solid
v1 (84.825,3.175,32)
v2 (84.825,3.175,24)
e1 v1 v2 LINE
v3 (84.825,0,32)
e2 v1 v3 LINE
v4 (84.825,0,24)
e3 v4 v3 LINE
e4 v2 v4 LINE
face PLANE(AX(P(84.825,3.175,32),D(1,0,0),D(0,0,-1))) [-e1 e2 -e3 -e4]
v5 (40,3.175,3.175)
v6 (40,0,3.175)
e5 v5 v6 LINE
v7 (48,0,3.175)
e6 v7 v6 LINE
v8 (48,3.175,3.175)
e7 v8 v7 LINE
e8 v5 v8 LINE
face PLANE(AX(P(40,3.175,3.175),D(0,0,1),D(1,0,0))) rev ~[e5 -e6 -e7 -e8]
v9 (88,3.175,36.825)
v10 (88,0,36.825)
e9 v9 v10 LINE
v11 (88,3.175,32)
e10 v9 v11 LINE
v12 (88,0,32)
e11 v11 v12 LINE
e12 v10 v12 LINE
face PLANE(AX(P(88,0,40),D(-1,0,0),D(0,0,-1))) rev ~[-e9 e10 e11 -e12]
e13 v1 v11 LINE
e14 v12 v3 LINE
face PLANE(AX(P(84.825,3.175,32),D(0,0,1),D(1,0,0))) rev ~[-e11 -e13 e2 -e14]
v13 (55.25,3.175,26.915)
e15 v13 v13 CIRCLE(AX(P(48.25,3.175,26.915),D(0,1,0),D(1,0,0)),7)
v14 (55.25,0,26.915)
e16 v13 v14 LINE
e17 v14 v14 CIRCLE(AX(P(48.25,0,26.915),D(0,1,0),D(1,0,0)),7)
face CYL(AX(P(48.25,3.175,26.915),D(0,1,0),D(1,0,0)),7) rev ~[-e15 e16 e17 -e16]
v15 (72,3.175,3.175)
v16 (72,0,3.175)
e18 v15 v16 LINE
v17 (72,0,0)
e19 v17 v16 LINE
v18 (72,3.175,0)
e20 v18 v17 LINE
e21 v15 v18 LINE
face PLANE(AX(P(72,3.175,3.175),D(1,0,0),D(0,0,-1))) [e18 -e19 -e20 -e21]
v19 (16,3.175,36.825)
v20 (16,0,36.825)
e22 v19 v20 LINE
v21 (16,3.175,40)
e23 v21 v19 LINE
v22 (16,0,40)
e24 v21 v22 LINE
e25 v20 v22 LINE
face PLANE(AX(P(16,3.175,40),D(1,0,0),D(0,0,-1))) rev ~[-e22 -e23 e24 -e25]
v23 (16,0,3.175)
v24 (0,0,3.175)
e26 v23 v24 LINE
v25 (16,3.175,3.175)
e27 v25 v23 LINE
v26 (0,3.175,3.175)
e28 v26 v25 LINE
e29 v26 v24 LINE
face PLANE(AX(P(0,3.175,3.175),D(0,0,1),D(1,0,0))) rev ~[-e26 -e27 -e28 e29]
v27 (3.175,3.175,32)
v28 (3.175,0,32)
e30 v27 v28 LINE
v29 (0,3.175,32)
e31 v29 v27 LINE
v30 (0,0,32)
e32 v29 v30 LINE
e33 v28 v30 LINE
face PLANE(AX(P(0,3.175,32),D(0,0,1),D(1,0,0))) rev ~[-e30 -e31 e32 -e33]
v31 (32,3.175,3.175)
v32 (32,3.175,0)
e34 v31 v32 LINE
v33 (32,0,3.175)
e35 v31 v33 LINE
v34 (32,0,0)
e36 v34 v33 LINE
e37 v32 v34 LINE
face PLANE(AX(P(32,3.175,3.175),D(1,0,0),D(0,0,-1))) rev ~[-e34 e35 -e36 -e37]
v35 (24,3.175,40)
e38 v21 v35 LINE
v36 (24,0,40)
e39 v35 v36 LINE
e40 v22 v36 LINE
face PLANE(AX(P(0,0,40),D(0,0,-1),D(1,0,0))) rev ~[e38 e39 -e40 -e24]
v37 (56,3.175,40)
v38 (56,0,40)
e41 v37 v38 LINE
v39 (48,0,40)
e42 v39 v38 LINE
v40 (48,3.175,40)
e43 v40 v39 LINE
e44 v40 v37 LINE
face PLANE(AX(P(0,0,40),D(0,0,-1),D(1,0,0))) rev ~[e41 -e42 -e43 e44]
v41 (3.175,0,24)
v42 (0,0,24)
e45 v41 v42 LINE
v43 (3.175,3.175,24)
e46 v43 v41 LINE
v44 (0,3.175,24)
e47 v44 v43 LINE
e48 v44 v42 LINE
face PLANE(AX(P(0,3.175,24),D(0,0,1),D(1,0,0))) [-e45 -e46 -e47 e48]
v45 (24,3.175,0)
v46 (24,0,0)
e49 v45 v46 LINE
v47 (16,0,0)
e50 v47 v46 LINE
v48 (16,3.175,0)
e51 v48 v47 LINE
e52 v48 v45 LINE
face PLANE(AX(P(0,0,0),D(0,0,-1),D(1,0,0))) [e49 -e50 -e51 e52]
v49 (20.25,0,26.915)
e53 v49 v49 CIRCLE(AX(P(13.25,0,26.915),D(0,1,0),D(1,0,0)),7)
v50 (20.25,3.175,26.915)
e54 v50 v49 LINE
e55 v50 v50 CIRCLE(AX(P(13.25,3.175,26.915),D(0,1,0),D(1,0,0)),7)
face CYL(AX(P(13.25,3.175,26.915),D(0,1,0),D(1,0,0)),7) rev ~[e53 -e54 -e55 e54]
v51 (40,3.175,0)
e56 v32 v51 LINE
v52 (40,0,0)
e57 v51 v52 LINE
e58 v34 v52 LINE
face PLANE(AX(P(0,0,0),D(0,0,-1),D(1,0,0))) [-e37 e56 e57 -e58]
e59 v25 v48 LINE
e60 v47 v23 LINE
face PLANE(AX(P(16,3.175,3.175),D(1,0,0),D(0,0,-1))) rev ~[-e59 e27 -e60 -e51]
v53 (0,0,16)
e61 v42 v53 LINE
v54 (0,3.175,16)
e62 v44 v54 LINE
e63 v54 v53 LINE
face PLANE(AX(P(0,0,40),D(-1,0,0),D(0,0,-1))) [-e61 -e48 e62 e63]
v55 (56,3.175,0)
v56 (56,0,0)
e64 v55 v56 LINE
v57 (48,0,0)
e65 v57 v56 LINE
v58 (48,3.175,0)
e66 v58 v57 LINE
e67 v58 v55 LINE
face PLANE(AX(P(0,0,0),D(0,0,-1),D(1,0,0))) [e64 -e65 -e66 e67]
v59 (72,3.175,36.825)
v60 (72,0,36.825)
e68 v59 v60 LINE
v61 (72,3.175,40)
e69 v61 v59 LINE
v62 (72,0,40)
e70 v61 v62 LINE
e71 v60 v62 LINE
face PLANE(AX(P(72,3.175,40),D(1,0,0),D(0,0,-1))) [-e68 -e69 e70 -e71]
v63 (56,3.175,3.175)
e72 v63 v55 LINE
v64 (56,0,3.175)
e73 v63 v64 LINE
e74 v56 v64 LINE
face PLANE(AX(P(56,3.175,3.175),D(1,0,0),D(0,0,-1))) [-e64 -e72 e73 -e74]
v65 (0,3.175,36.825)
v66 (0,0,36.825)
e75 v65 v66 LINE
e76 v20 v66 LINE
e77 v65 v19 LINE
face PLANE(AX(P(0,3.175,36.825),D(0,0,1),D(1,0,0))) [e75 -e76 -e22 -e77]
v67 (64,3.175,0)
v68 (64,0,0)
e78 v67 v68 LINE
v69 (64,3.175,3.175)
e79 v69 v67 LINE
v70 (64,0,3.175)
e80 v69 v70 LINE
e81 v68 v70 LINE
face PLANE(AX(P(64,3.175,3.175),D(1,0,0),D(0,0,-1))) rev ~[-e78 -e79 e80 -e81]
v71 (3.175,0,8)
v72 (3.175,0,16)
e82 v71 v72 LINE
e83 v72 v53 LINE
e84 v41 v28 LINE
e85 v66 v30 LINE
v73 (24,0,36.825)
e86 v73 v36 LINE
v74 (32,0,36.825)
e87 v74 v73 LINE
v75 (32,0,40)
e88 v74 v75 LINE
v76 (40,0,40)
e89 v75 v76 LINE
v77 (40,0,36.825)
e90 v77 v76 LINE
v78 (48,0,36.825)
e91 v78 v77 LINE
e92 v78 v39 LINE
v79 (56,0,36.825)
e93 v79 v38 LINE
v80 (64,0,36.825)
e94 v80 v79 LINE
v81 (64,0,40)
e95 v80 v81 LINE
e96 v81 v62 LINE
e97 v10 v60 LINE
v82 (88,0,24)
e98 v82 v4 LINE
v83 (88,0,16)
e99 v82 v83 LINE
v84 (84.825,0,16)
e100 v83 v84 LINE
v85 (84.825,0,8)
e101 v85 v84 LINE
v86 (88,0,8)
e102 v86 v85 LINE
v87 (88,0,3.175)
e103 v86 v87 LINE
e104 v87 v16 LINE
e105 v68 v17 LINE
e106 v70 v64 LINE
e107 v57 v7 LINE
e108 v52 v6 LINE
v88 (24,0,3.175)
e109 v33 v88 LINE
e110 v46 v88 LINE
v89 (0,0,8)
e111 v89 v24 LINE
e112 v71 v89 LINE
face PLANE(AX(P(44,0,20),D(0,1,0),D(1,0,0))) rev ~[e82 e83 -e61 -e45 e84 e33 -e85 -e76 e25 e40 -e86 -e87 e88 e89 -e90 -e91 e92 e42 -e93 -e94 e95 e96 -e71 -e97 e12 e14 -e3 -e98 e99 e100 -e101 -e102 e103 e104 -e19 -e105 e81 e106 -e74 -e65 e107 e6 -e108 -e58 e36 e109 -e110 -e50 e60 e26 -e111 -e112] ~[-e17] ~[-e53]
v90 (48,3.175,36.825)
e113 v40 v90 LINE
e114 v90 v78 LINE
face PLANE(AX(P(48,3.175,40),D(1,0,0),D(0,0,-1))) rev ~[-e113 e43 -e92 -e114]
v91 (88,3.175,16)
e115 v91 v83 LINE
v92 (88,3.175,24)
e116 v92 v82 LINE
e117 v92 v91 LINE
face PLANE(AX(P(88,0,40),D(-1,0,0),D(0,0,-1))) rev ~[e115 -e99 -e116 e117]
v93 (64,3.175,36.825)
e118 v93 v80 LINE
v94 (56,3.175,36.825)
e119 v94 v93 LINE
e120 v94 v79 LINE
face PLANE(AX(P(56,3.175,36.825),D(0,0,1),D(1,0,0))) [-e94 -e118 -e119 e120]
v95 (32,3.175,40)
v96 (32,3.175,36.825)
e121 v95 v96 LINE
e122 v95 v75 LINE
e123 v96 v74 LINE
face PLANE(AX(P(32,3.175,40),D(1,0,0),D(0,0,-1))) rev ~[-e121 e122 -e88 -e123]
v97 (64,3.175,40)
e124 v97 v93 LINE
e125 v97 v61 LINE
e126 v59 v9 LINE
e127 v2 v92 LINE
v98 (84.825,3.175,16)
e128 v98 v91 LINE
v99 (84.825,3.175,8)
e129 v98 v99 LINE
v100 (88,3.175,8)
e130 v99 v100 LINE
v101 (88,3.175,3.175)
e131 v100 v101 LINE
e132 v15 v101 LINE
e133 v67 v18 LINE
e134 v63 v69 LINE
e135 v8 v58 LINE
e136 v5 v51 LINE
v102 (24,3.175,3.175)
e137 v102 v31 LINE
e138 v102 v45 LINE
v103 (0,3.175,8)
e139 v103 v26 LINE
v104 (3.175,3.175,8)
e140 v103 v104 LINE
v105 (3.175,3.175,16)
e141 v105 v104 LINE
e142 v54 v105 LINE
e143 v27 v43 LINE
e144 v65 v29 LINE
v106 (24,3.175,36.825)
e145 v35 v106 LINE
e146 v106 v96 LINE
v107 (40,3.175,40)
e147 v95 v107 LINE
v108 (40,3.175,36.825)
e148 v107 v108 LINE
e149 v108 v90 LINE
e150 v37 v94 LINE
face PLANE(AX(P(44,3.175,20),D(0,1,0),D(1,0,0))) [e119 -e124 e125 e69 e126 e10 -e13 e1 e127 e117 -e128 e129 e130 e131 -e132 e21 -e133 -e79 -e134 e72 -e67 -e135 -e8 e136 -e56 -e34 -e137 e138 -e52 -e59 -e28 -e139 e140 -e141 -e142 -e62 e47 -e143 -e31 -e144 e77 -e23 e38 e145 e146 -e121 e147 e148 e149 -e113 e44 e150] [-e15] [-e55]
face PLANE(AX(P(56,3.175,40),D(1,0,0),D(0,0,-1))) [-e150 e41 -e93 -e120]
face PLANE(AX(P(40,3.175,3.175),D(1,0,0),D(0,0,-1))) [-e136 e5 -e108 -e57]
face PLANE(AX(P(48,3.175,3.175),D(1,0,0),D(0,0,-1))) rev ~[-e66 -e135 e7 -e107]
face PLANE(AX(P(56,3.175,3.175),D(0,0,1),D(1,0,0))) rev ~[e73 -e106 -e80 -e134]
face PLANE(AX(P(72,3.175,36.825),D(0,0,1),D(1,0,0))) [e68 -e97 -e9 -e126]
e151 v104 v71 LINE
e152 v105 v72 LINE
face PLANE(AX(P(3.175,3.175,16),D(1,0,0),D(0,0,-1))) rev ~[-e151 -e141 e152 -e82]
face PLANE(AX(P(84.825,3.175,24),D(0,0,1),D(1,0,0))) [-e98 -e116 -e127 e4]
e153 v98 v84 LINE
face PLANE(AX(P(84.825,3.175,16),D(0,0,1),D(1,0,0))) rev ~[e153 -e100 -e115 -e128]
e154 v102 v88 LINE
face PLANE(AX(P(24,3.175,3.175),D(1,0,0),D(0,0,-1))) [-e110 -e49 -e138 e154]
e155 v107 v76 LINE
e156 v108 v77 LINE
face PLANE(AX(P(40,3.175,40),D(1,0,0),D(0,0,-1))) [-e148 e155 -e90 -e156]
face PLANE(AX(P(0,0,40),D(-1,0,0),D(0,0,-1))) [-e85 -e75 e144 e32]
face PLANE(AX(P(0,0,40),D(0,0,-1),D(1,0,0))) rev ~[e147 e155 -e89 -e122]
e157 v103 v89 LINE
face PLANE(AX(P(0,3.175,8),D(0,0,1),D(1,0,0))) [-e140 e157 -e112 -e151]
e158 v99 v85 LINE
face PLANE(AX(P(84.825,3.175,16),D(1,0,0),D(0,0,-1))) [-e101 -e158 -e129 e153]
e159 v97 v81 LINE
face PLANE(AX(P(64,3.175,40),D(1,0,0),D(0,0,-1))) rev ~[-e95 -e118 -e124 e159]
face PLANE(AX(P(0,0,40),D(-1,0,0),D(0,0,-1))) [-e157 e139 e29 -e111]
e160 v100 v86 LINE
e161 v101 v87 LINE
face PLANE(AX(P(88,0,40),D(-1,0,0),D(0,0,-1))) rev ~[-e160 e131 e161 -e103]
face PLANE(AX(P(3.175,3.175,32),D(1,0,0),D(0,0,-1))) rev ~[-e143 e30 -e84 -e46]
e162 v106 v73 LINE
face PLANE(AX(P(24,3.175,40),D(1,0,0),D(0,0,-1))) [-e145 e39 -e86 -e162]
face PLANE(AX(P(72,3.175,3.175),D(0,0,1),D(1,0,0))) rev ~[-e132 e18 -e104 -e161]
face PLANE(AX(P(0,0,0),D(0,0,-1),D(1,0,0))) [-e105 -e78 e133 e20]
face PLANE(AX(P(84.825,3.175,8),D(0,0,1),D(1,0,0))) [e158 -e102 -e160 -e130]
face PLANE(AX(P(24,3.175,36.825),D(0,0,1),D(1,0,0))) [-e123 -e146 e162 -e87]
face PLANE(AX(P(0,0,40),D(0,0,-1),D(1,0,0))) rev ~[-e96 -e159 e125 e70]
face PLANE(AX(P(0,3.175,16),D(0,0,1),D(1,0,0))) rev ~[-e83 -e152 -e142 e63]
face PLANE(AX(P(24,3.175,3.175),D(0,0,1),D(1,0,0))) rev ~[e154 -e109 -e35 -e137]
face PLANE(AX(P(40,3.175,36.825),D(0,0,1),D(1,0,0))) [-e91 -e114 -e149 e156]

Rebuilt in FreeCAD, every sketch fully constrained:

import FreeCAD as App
import Part
import Sketcher

doc = App.newDocument("Part")
body = doc.addObject("PartDesign::Body", "Body")

# Sketch on XZ plane
sketch1 = doc.addObject("Sketcher::SketchObject", "Sketch")
body.addObject(sketch1)
sketch1.AttachmentSupport = (doc.XZ_Plane, [""])
sketch1.MapMode = "FlatFace"
sketch1.addGeometry(Part.LineSegment(App.Vector(0, 0, 0), App.Vector(0, 40, 0)), False)
sketch1.addGeometry(Part.LineSegment(App.Vector(0, 40, 0), App.Vector(88, 40, 0)), False)
sketch1.addGeometry(Part.LineSegment(App.Vector(88, 40, 0), App.Vector(88, 0, 0)), False)
sketch1.addGeometry(Part.LineSegment(App.Vector(88, 0, 0), App.Vector(0, 0, 0)), False)
sketch1.addConstraint(Sketcher.Constraint("Coincident", 0, 2, 1, 1))
sketch1.addConstraint(Sketcher.Constraint("Coincident", 1, 2, 2, 1))
sketch1.addConstraint(Sketcher.Constraint("Coincident", 2, 2, 3, 1))
sketch1.addConstraint(Sketcher.Constraint("Coincident", 3, 2, 0, 1))
sketch1.addConstraint(Sketcher.Constraint("Vertical", 0))
sketch1.addConstraint(Sketcher.Constraint("Horizontal", 1))
sketch1.addConstraint(Sketcher.Constraint("Vertical", 2))
sketch1.addConstraint(Sketcher.Constraint("Horizontal", 3))
sketch1.addConstraint(Sketcher.Constraint("Coincident", 3, 2, -1, 1))
sketch1.addConstraint(Sketcher.Constraint("DistanceX", 1, 1, 1, 2, 88.0))
sketch1.addConstraint(Sketcher.Constraint("DistanceY", 0, 1, 0, 2, 40.0))
pad1 = doc.addObject("PartDesign::Pad", "Pad")
body.addObject(pad1)
pad1.Profile = sketch1
pad1.Length = 3.175
pad1.Reversed = True

# Sketch on XZ plane
sketch2 = doc.addObject("Sketcher::SketchObject", "Sketch001")
body.addObject(sketch2)
sketch2.AttachmentSupport = (doc.XZ_Plane, [""])
sketch2.MapMode = "FlatFace"
sketch2.AttachmentOffset = App.Placement(App.Vector(0, 0, -3.175), App.Rotation())
sketch2.addGeometry(Part.LineSegment(App.Vector(0, 0, 0), App.Vector(0, 3.2, 0)), False)
sketch2.addGeometry(Part.LineSegment(App.Vector(0, 3.2, 0), App.Vector(16, 3.2, 0)), False)
sketch2.addGeometry(Part.LineSegment(App.Vector(16, 3.2, 0), App.Vector(16, 0, 0)), False)
sketch2.addGeometry(Part.LineSegment(App.Vector(16, 0, 0), App.Vector(0, 0, 0)), False)
sketch2.addConstraint(Sketcher.Constraint("Coincident", 0, 2, 1, 1))
sketch2.addConstraint(Sketcher.Constraint("Coincident", 1, 2, 2, 1))
sketch2.addConstraint(Sketcher.Constraint("Coincident", 2, 2, 3, 1))
sketch2.addConstraint(Sketcher.Constraint("Coincident", 3, 2, 0, 1))
sketch2.addConstraint(Sketcher.Constraint("Vertical", 0))
sketch2.addConstraint(Sketcher.Constraint("Horizontal", 1))
sketch2.addConstraint(Sketcher.Constraint("Vertical", 2))
sketch2.addConstraint(Sketcher.Constraint("Horizontal", 3))
sketch2.addConstraint(Sketcher.Constraint("Coincident", 3, 2, -1, 1))
sketch2.addConstraint(Sketcher.Constraint("DistanceX", 1, 1, 1, 2, 16.0))
sketch2.addConstraint(Sketcher.Constraint("DistanceY", 0, 1, 0, 2, 3.175))
pocket1 = doc.addObject("PartDesign::Pocket", "Pocket")
body.addObject(pocket1)
pocket1.Profile = sketch2
pocket1.Type = "UpToFirst"
pocket1.Reversed = True

# Sketch on XZ plane
sketch3 = doc.addObject("Sketcher::SketchObject", "Sketch002")
body.addObject(sketch3)
sketch3.AttachmentSupport = (doc.XZ_Plane, [""])
sketch3.MapMode = "FlatFace"
sketch3.AttachmentOffset = App.Placement(App.Vector(0, 0, -3.175), App.Rotation())
sketch3.addGeometry(Part.LineSegment(App.Vector(40, 0, 0), App.Vector(40, 3.2, 0)), False)
sketch3.addGeometry(Part.LineSegment(App.Vector(40, 3.2, 0), App.Vector(48, 3.2, 0)), False)
sketch3.addGeometry(Part.LineSegment(App.Vector(48, 3.2, 0), App.Vector(48, 0, 0)), False)
sketch3.addGeometry(Part.LineSegment(App.Vector(48, 0, 0), App.Vector(40, 0, 0)), False)
sketch3.addConstraint(Sketcher.Constraint("Coincident", 0, 2, 1, 1))
sketch3.addConstraint(Sketcher.Constraint("Coincident", 1, 2, 2, 1))
sketch3.addConstraint(Sketcher.Constraint("Coincident", 2, 2, 3, 1))
sketch3.addConstraint(Sketcher.Constraint("Coincident", 3, 2, 0, 1))
sketch3.addConstraint(Sketcher.Constraint("Vertical", 0))
sketch3.addConstraint(Sketcher.Constraint("Horizontal", 1))
sketch3.addConstraint(Sketcher.Constraint("Vertical", 2))
sketch3.addConstraint(Sketcher.Constraint("Horizontal", 3))
sketch3.addConstraint(Sketcher.Constraint("PointOnObject", 2, 2, -1))
sketch3.addConstraint(Sketcher.Constraint("DistanceX", 1, 1, 1, 2, 8.0))
sketch3.addConstraint(Sketcher.Constraint("DistanceX", -1, 1, 0, 2, 40.0))
sketch3.addConstraint(Sketcher.Constraint("DistanceY", 0, 1, 0, 2, 3.175))
pocket2 = doc.addObject("PartDesign::Pocket", "Pocket001")
body.addObject(pocket2)
pocket2.Profile = sketch3
pocket2.Type = "UpToFirst"
pocket2.Reversed = True

# Sketch on XZ plane
sketch4 = doc.addObject("Sketcher::SketchObject", "Sketch003")
body.addObject(sketch4)
sketch4.AttachmentSupport = (doc.XZ_Plane, [""])
sketch4.MapMode = "FlatFace"
sketch4.AttachmentOffset = App.Placement(App.Vector(0, 0, -3.175), App.Rotation())
sketch4.addGeometry(Part.LineSegment(App.Vector(56, 0, 0), App.Vector(56, 3.2, 0)), False)
sketch4.addGeometry(Part.LineSegment(App.Vector(56, 3.2, 0), App.Vector(64, 3.2, 0)), False)
sketch4.addGeometry(Part.LineSegment(App.Vector(64, 3.2, 0), App.Vector(64, 0, 0)), False)
sketch4.addGeometry(Part.LineSegment(App.Vector(64, 0, 0), App.Vector(56, 0, 0)), False)
sketch4.addConstraint(Sketcher.Constraint("Coincident", 0, 2, 1, 1))
sketch4.addConstraint(Sketcher.Constraint("Coincident", 1, 2, 2, 1))
sketch4.addConstraint(Sketcher.Constraint("Coincident", 2, 2, 3, 1))
sketch4.addConstraint(Sketcher.Constraint("Coincident", 3, 2, 0, 1))
sketch4.addConstraint(Sketcher.Constraint("Vertical", 0))
sketch4.addConstraint(Sketcher.Constraint("Horizontal", 1))
sketch4.addConstraint(Sketcher.Constraint("Vertical", 2))
sketch4.addConstraint(Sketcher.Constraint("Horizontal", 3))
sketch4.addConstraint(Sketcher.Constraint("PointOnObject", 2, 2, -1))
sketch4.addConstraint(Sketcher.Constraint("DistanceX", 1, 1, 1, 2, 8.0))
sketch4.addConstraint(Sketcher.Constraint("DistanceX", -1, 1, 0, 2, 56.0))
sketch4.addConstraint(Sketcher.Constraint("DistanceY", 0, 1, 0, 2, 3.175))
pocket3 = doc.addObject("PartDesign::Pocket", "Pocket002")
body.addObject(pocket3)
pocket3.Profile = sketch4
pocket3.Type = "UpToFirst"
pocket3.Reversed = True

# Sketch on XZ plane
sketch5 = doc.addObject("Sketcher::SketchObject", "Sketch004")
body.addObject(sketch5)
sketch5.AttachmentSupport = (doc.XZ_Plane, [""])
sketch5.MapMode = "FlatFace"
sketch5.AttachmentOffset = App.Placement(App.Vector(0, 0, -3.175), App.Rotation())
sketch5.addGeometry(Part.LineSegment(App.Vector(72, 0, 0), App.Vector(72, 3.2, 0)), False)
sketch5.addGeometry(Part.LineSegment(App.Vector(72, 3.2, 0), App.Vector(88, 3.2, 0)), False)
sketch5.addGeometry(Part.LineSegment(App.Vector(88, 3.2, 0), App.Vector(88, 0, 0)), False)
sketch5.addGeometry(Part.LineSegment(App.Vector(88, 0, 0), App.Vector(72, 0, 0)), False)
sketch5.addConstraint(Sketcher.Constraint("Coincident", 0, 2, 1, 1))
sketch5.addConstraint(Sketcher.Constraint("Coincident", 1, 2, 2, 1))
sketch5.addConstraint(Sketcher.Constraint("Coincident", 2, 2, 3, 1))
sketch5.addConstraint(Sketcher.Constraint("Coincident", 3, 2, 0, 1))
sketch5.addConstraint(Sketcher.Constraint("Vertical", 0))
sketch5.addConstraint(Sketcher.Constraint("Horizontal", 1))
sketch5.addConstraint(Sketcher.Constraint("Vertical", 2))
sketch5.addConstraint(Sketcher.Constraint("Horizontal", 3))
sketch5.addConstraint(Sketcher.Constraint("PointOnObject", 2, 2, -1))
sketch5.addConstraint(Sketcher.Constraint("DistanceX", 1, 1, 1, 2, 16.0))
sketch5.addConstraint(Sketcher.Constraint("DistanceX", -1, 1, 0, 2, 72.0))
sketch5.addConstraint(Sketcher.Constraint("DistanceY", 0, 1, 0, 2, 3.175))
pocket4 = doc.addObject("PartDesign::Pocket", "Pocket003")
body.addObject(pocket4)
pocket4.Profile = sketch5
pocket4.Type = "UpToFirst"
pocket4.Reversed = True

# Sketch on XZ plane
sketch6 = doc.addObject("Sketcher::SketchObject", "Sketch005")
body.addObject(sketch6)
sketch6.AttachmentSupport = (doc.XZ_Plane, [""])
sketch6.MapMode = "FlatFace"
sketch6.AttachmentOffset = App.Placement(App.Vector(0, 0, -3.175), App.Rotation())
sketch6.addGeometry(Part.LineSegment(App.Vector(24, 0, 0), App.Vector(24, 3.2, 0)), False)
sketch6.addGeometry(Part.LineSegment(App.Vector(24, 3.2, 0), App.Vector(32, 3.2, 0)), False)
sketch6.addGeometry(Part.LineSegment(App.Vector(32, 3.2, 0), App.Vector(32, 0, 0)), False)
sketch6.addGeometry(Part.LineSegment(App.Vector(32, 0, 0), App.Vector(24, 0, 0)), False)
sketch6.addConstraint(Sketcher.Constraint("Coincident", 0, 2, 1, 1))
sketch6.addConstraint(Sketcher.Constraint("Coincident", 1, 2, 2, 1))
sketch6.addConstraint(Sketcher.Constraint("Coincident", 2, 2, 3, 1))
sketch6.addConstraint(Sketcher.Constraint("Coincident", 3, 2, 0, 1))
sketch6.addConstraint(Sketcher.Constraint("Vertical", 0))
sketch6.addConstraint(Sketcher.Constraint("Horizontal", 1))
sketch6.addConstraint(Sketcher.Constraint("Vertical", 2))
sketch6.addConstraint(Sketcher.Constraint("Horizontal", 3))
sketch6.addConstraint(Sketcher.Constraint("PointOnObject", 2, 2, -1))
sketch6.addConstraint(Sketcher.Constraint("DistanceX", 1, 1, 1, 2, 8.0))
sketch6.addConstraint(Sketcher.Constraint("DistanceX", -1, 1, 0, 2, 24.0))
sketch6.addConstraint(Sketcher.Constraint("DistanceY", 0, 1, 0, 2, 3.175))
pocket5 = doc.addObject("PartDesign::Pocket", "Pocket004")
body.addObject(pocket5)
pocket5.Profile = sketch6
pocket5.Type = "UpToFirst"
pocket5.Reversed = True

# Sketch on XZ plane
sketch7 = doc.addObject("Sketcher::SketchObject", "Sketch006")
body.addObject(sketch7)
sketch7.AttachmentSupport = (doc.XZ_Plane, [""])
sketch7.MapMode = "FlatFace"
sketch7.AttachmentOffset = App.Placement(App.Vector(0, 0, -3.175), App.Rotation())
sketch7.addGeometry(Part.LineSegment(App.Vector(40, 36.8, 0), App.Vector(40, 40, 0)), False)
sketch7.addGeometry(Part.LineSegment(App.Vector(40, 40, 0), App.Vector(48, 40, 0)), False)
sketch7.addGeometry(Part.LineSegment(App.Vector(48, 40, 0), App.Vector(48, 36.8, 0)), False)
sketch7.addGeometry(Part.LineSegment(App.Vector(48, 36.8, 0), App.Vector(40, 36.8, 0)), False)
sketch7.addConstraint(Sketcher.Constraint("Coincident", 0, 2, 1, 1))
sketch7.addConstraint(Sketcher.Constraint("Coincident", 1, 2, 2, 1))
sketch7.addConstraint(Sketcher.Constraint("Coincident", 2, 2, 3, 1))
sketch7.addConstraint(Sketcher.Constraint("Coincident", 3, 2, 0, 1))
sketch7.addConstraint(Sketcher.Constraint("Vertical", 0))
sketch7.addConstraint(Sketcher.Constraint("Horizontal", 1))
sketch7.addConstraint(Sketcher.Constraint("Vertical", 2))
sketch7.addConstraint(Sketcher.Constraint("Horizontal", 3))
sketch7.addConstraint(Sketcher.Constraint("DistanceX", 1, 1, 1, 2, 8.0))
sketch7.addConstraint(Sketcher.Constraint("DistanceX", -1, 1, 0, 2, 40.0))
sketch7.addConstraint(Sketcher.Constraint("DistanceY", -1, 1, 0, 2, 40.0))
sketch7.addConstraint(Sketcher.Constraint("DistanceY", 0, 1, 0, 2, 3.175))
pocket6 = doc.addObject("PartDesign::Pocket", "Pocket005")
body.addObject(pocket6)
pocket6.Profile = sketch7
pocket6.Type = "UpToFirst"
pocket6.Reversed = True

# Sketch on XZ plane
sketch8 = doc.addObject("Sketcher::SketchObject", "Sketch007")
body.addObject(sketch8)
sketch8.AttachmentSupport = (doc.XZ_Plane, [""])
sketch8.MapMode = "FlatFace"
sketch8.AttachmentOffset = App.Placement(App.Vector(0, 0, -3.175), App.Rotation())
sketch8.addGeometry(Part.LineSegment(App.Vector(24, 36.8, 0), App.Vector(24, 40, 0)), False)
sketch8.addGeometry(Part.LineSegment(App.Vector(24, 40, 0), App.Vector(32, 40, 0)), False)
sketch8.addGeometry(Part.LineSegment(App.Vector(32, 40, 0), App.Vector(32, 36.8, 0)), False)
sketch8.addGeometry(Part.LineSegment(App.Vector(32, 36.8, 0), App.Vector(24, 36.8, 0)), False)
sketch8.addConstraint(Sketcher.Constraint("Coincident", 0, 2, 1, 1))
sketch8.addConstraint(Sketcher.Constraint("Coincident", 1, 2, 2, 1))
sketch8.addConstraint(Sketcher.Constraint("Coincident", 2, 2, 3, 1))
sketch8.addConstraint(Sketcher.Constraint("Coincident", 3, 2, 0, 1))
sketch8.addConstraint(Sketcher.Constraint("Vertical", 0))
sketch8.addConstraint(Sketcher.Constraint("Horizontal", 1))
sketch8.addConstraint(Sketcher.Constraint("Vertical", 2))
sketch8.addConstraint(Sketcher.Constraint("Horizontal", 3))
sketch8.addConstraint(Sketcher.Constraint("DistanceX", 1, 1, 1, 2, 8.0))
sketch8.addConstraint(Sketcher.Constraint("DistanceX", -1, 1, 0, 2, 24.0))
sketch8.addConstraint(Sketcher.Constraint("DistanceY", -1, 1, 0, 2, 40.0))
sketch8.addConstraint(Sketcher.Constraint("DistanceY", 0, 1, 0, 2, 3.175))
pocket7 = doc.addObject("PartDesign::Pocket", "Pocket006")
body.addObject(pocket7)
pocket7.Profile = sketch8
pocket7.Type = "UpToFirst"
pocket7.Reversed = True

# Sketch on XZ plane
sketch9 = doc.addObject("Sketcher::SketchObject", "Sketch008")
body.addObject(sketch9)
sketch9.AttachmentSupport = (doc.XZ_Plane, [""])
sketch9.MapMode = "FlatFace"
sketch9.AttachmentOffset = App.Placement(App.Vector(0, 0, -3.175), App.Rotation())
sketch9.addGeometry(Part.LineSegment(App.Vector(0, 36.8, 0), App.Vector(0, 40, 0)), False)
sketch9.addGeometry(Part.LineSegment(App.Vector(0, 40, 0), App.Vector(16, 40, 0)), False)
sketch9.addGeometry(Part.LineSegment(App.Vector(16, 40, 0), App.Vector(16, 36.8, 0)), False)
sketch9.addGeometry(Part.LineSegment(App.Vector(16, 36.8, 0), App.Vector(0, 36.8, 0)), False)
sketch9.addConstraint(Sketcher.Constraint("Coincident", 0, 2, 1, 1))
sketch9.addConstraint(Sketcher.Constraint("Coincident", 1, 2, 2, 1))
sketch9.addConstraint(Sketcher.Constraint("Coincident", 2, 2, 3, 1))
sketch9.addConstraint(Sketcher.Constraint("Coincident", 3, 2, 0, 1))
sketch9.addConstraint(Sketcher.Constraint("Vertical", 0))
sketch9.addConstraint(Sketcher.Constraint("Horizontal", 1))
sketch9.addConstraint(Sketcher.Constraint("Vertical", 2))
sketch9.addConstraint(Sketcher.Constraint("Horizontal", 3))
sketch9.addConstraint(Sketcher.Constraint("PointOnObject", 0, 2, -2))
sketch9.addConstraint(Sketcher.Constraint("DistanceX", 1, 1, 1, 2, 16.0))
sketch9.addConstraint(Sketcher.Constraint("DistanceY", -1, 1, 0, 2, 40.0))
sketch9.addConstraint(Sketcher.Constraint("DistanceY", 0, 1, 0, 2, 3.175))
pocket8 = doc.addObject("PartDesign::Pocket", "Pocket007")
body.addObject(pocket8)
pocket8.Profile = sketch9
pocket8.Type = "UpToFirst"
pocket8.Reversed = True

# Sketch on XZ plane
sketch10 = doc.addObject("Sketcher::SketchObject", "Sketch009")
body.addObject(sketch10)
sketch10.AttachmentSupport = (doc.XZ_Plane, [""])
sketch10.MapMode = "FlatFace"
sketch10.AttachmentOffset = App.Placement(App.Vector(0, 0, -3.175), App.Rotation())
sketch10.addGeometry(Part.LineSegment(App.Vector(72, 36.8, 0), App.Vector(72, 40, 0)), False)
sketch10.addGeometry(Part.LineSegment(App.Vector(72, 40, 0), App.Vector(88, 40, 0)), False)
sketch10.addGeometry(Part.LineSegment(App.Vector(88, 40, 0), App.Vector(88, 36.8, 0)), False)
sketch10.addGeometry(Part.LineSegment(App.Vector(88, 36.8, 0), App.Vector(72, 36.8, 0)), False)
sketch10.addConstraint(Sketcher.Constraint("Coincident", 0, 2, 1, 1))
sketch10.addConstraint(Sketcher.Constraint("Coincident", 1, 2, 2, 1))
sketch10.addConstraint(Sketcher.Constraint("Coincident", 2, 2, 3, 1))
sketch10.addConstraint(Sketcher.Constraint("Coincident", 3, 2, 0, 1))
sketch10.addConstraint(Sketcher.Constraint("Vertical", 0))
sketch10.addConstraint(Sketcher.Constraint("Horizontal", 1))
sketch10.addConstraint(Sketcher.Constraint("Vertical", 2))
sketch10.addConstraint(Sketcher.Constraint("Horizontal", 3))
sketch10.addConstraint(Sketcher.Constraint("DistanceX", 1, 1, 1, 2, 16.0))
sketch10.addConstraint(Sketcher.Constraint("DistanceX", -1, 1, 0, 2, 72.0))
sketch10.addConstraint(Sketcher.Constraint("DistanceY", -1, 1, 0, 2, 40.0))
sketch10.addConstraint(Sketcher.Constraint("DistanceY", 0, 1, 0, 2, 3.175))
pocket9 = doc.addObject("PartDesign::Pocket", "Pocket008")
body.addObject(pocket9)
pocket9.Profile = sketch10
pocket9.Type = "UpToFirst"
pocket9.Reversed = True

# Sketch on XZ plane
sketch11 = doc.addObject("Sketcher::SketchObject", "Sketch010")
body.addObject(sketch11)
sketch11.AttachmentSupport = (doc.XZ_Plane, [""])
sketch11.MapMode = "FlatFace"
sketch11.AttachmentOffset = App.Placement(App.Vector(0, 0, -3.175), App.Rotation())
sketch11.addGeometry(Part.LineSegment(App.Vector(56, 36.8, 0), App.Vector(56, 40, 0)), False)
sketch11.addGeometry(Part.LineSegment(App.Vector(56, 40, 0), App.Vector(64, 40, 0)), False)
sketch11.addGeometry(Part.LineSegment(App.Vector(64, 40, 0), App.Vector(64, 36.8, 0)), False)
sketch11.addGeometry(Part.LineSegment(App.Vector(64, 36.8, 0), App.Vector(56, 36.8, 0)), False)
sketch11.addConstraint(Sketcher.Constraint("Coincident", 0, 2, 1, 1))
sketch11.addConstraint(Sketcher.Constraint("Coincident", 1, 2, 2, 1))
sketch11.addConstraint(Sketcher.Constraint("Coincident", 2, 2, 3, 1))
sketch11.addConstraint(Sketcher.Constraint("Coincident", 3, 2, 0, 1))
sketch11.addConstraint(Sketcher.Constraint("Vertical", 0))
sketch11.addConstraint(Sketcher.Constraint("Horizontal", 1))
sketch11.addConstraint(Sketcher.Constraint("Vertical", 2))
sketch11.addConstraint(Sketcher.Constraint("Horizontal", 3))
sketch11.addConstraint(Sketcher.Constraint("DistanceX", 1, 1, 1, 2, 8.0))
sketch11.addConstraint(Sketcher.Constraint("DistanceX", -1, 1, 0, 2, 56.0))
sketch11.addConstraint(Sketcher.Constraint("DistanceY", -1, 1, 0, 2, 40.0))
sketch11.addConstraint(Sketcher.Constraint("DistanceY", 0, 1, 0, 2, 3.175))
pocket10 = doc.addObject("PartDesign::Pocket", "Pocket009")
body.addObject(pocket10)
pocket10.Profile = sketch11
pocket10.Type = "UpToFirst"
pocket10.Reversed = True

# Sketch on XZ plane
sketch12 = doc.addObject("Sketcher::SketchObject", "Sketch011")
body.addObject(sketch12)
sketch12.AttachmentSupport = (doc.XZ_Plane, [""])
sketch12.MapMode = "FlatFace"
sketch12.AttachmentOffset = App.Placement(App.Vector(0, 0, -3.175), App.Rotation())
sketch12.addGeometry(Part.LineSegment(App.Vector(0, 24, 0), App.Vector(0, 32, 0)), False)
sketch12.addGeometry(Part.LineSegment(App.Vector(0, 32, 0), App.Vector(3.2, 32, 0)), False)
sketch12.addGeometry(Part.LineSegment(App.Vector(3.2, 32, 0), App.Vector(3.2, 24, 0)), False)
sketch12.addGeometry(Part.LineSegment(App.Vector(3.2, 24, 0), App.Vector(0, 24, 0)), False)
sketch12.addConstraint(Sketcher.Constraint("Coincident", 0, 2, 1, 1))
sketch12.addConstraint(Sketcher.Constraint("Coincident", 1, 2, 2, 1))
sketch12.addConstraint(Sketcher.Constraint("Coincident", 2, 2, 3, 1))
sketch12.addConstraint(Sketcher.Constraint("Coincident", 3, 2, 0, 1))
sketch12.addConstraint(Sketcher.Constraint("Vertical", 0))
sketch12.addConstraint(Sketcher.Constraint("Horizontal", 1))
sketch12.addConstraint(Sketcher.Constraint("Vertical", 2))
sketch12.addConstraint(Sketcher.Constraint("Horizontal", 3))
sketch12.addConstraint(Sketcher.Constraint("PointOnObject", 0, 2, -2))
sketch12.addConstraint(Sketcher.Constraint("DistanceY", 0, 1, 0, 2, 8.0))
sketch12.addConstraint(Sketcher.Constraint("DistanceY", -1, 1, 0, 2, 32.0))
sketch12.addConstraint(Sketcher.Constraint("DistanceX", 1, 1, 1, 2, 3.175))
pocket11 = doc.addObject("PartDesign::Pocket", "Pocket010")
body.addObject(pocket11)
pocket11.Profile = sketch12
pocket11.Type = "UpToFirst"
pocket11.Reversed = True

# Sketch on XZ plane
sketch13 = doc.addObject("Sketcher::SketchObject", "Sketch012")
body.addObject(sketch13)
sketch13.AttachmentSupport = (doc.XZ_Plane, [""])
sketch13.MapMode = "FlatFace"
sketch13.AttachmentOffset = App.Placement(App.Vector(0, 0, -3.175), App.Rotation())
sketch13.addGeometry(Part.LineSegment(App.Vector(0, 8, 0), App.Vector(0, 16, 0)), False)
sketch13.addGeometry(Part.LineSegment(App.Vector(0, 16, 0), App.Vector(3.2, 16, 0)), False)
sketch13.addGeometry(Part.LineSegment(App.Vector(3.2, 16, 0), App.Vector(3.2, 8, 0)), False)
sketch13.addGeometry(Part.LineSegment(App.Vector(3.2, 8, 0), App.Vector(0, 8, 0)), False)
sketch13.addConstraint(Sketcher.Constraint("Coincident", 0, 2, 1, 1))
sketch13.addConstraint(Sketcher.Constraint("Coincident", 1, 2, 2, 1))
sketch13.addConstraint(Sketcher.Constraint("Coincident", 2, 2, 3, 1))
sketch13.addConstraint(Sketcher.Constraint("Coincident", 3, 2, 0, 1))
sketch13.addConstraint(Sketcher.Constraint("Vertical", 0))
sketch13.addConstraint(Sketcher.Constraint("Horizontal", 1))
sketch13.addConstraint(Sketcher.Constraint("Vertical", 2))
sketch13.addConstraint(Sketcher.Constraint("Horizontal", 3))
sketch13.addConstraint(Sketcher.Constraint("PointOnObject", 0, 2, -2))
sketch13.addConstraint(Sketcher.Constraint("DistanceY", 0, 1, 0, 2, 8.0))
sketch13.addConstraint(Sketcher.Constraint("DistanceY", -1, 1, 0, 2, 16.0))
sketch13.addConstraint(Sketcher.Constraint("DistanceX", 1, 1, 1, 2, 3.175))
pocket12 = doc.addObject("PartDesign::Pocket", "Pocket011")
body.addObject(pocket12)
pocket12.Profile = sketch13
pocket12.Type = "UpToFirst"
pocket12.Reversed = True

# Sketch on XZ plane
sketch14 = doc.addObject("Sketcher::SketchObject", "Sketch013")
body.addObject(sketch14)
sketch14.AttachmentSupport = (doc.XZ_Plane, [""])
sketch14.MapMode = "FlatFace"
sketch14.AttachmentOffset = App.Placement(App.Vector(0, 0, -3.175), App.Rotation())
sketch14.addGeometry(Part.LineSegment(App.Vector(84.8, 24, 0), App.Vector(84.8, 32, 0)), False)
sketch14.addGeometry(Part.LineSegment(App.Vector(84.8, 32, 0), App.Vector(88, 32, 0)), False)
sketch14.addGeometry(Part.LineSegment(App.Vector(88, 32, 0), App.Vector(88, 24, 0)), False)
sketch14.addGeometry(Part.LineSegment(App.Vector(88, 24, 0), App.Vector(84.8, 24, 0)), False)
sketch14.addConstraint(Sketcher.Constraint("Coincident", 0, 2, 1, 1))
sketch14.addConstraint(Sketcher.Constraint("Coincident", 1, 2, 2, 1))
sketch14.addConstraint(Sketcher.Constraint("Coincident", 2, 2, 3, 1))
sketch14.addConstraint(Sketcher.Constraint("Coincident", 3, 2, 0, 1))
sketch14.addConstraint(Sketcher.Constraint("Vertical", 0))
sketch14.addConstraint(Sketcher.Constraint("Horizontal", 1))
sketch14.addConstraint(Sketcher.Constraint("Vertical", 2))
sketch14.addConstraint(Sketcher.Constraint("Horizontal", 3))
sketch14.addConstraint(Sketcher.Constraint("DistanceY", 0, 1, 0, 2, 8.0))
sketch14.addConstraint(Sketcher.Constraint("DistanceY", -1, 1, 0, 2, 32.0))
sketch14.addConstraint(Sketcher.Constraint("DistanceX", -1, 1, 1, 2, 88.0))
sketch14.addConstraint(Sketcher.Constraint("DistanceX", 1, 1, 1, 2, 3.175))
pocket13 = doc.addObject("PartDesign::Pocket", "Pocket012")
body.addObject(pocket13)
pocket13.Profile = sketch14
pocket13.Type = "UpToFirst"
pocket13.Reversed = True

# Sketch on XZ plane
sketch15 = doc.addObject("Sketcher::SketchObject", "Sketch014")
body.addObject(sketch15)
sketch15.AttachmentSupport = (doc.XZ_Plane, [""])
sketch15.MapMode = "FlatFace"
sketch15.AttachmentOffset = App.Placement(App.Vector(0, 0, -3.175), App.Rotation())
sketch15.addGeometry(Part.LineSegment(App.Vector(84.8, 8, 0), App.Vector(84.8, 16, 0)), False)
sketch15.addGeometry(Part.LineSegment(App.Vector(84.8, 16, 0), App.Vector(88, 16, 0)), False)
sketch15.addGeometry(Part.LineSegment(App.Vector(88, 16, 0), App.Vector(88, 8, 0)), False)
sketch15.addGeometry(Part.LineSegment(App.Vector(88, 8, 0), App.Vector(84.8, 8, 0)), False)
sketch15.addConstraint(Sketcher.Constraint("Coincident", 0, 2, 1, 1))
sketch15.addConstraint(Sketcher.Constraint("Coincident", 1, 2, 2, 1))
sketch15.addConstraint(Sketcher.Constraint("Coincident", 2, 2, 3, 1))
sketch15.addConstraint(Sketcher.Constraint("Coincident", 3, 2, 0, 1))
sketch15.addConstraint(Sketcher.Constraint("Vertical", 0))
sketch15.addConstraint(Sketcher.Constraint("Horizontal", 1))
sketch15.addConstraint(Sketcher.Constraint("Vertical", 2))
sketch15.addConstraint(Sketcher.Constraint("Horizontal", 3))
sketch15.addConstraint(Sketcher.Constraint("DistanceY", 0, 1, 0, 2, 8.0))
sketch15.addConstraint(Sketcher.Constraint("DistanceY", -1, 1, 0, 2, 16.0))
sketch15.addConstraint(Sketcher.Constraint("DistanceX", -1, 1, 1, 2, 88.0))
sketch15.addConstraint(Sketcher.Constraint("DistanceX", 1, 1, 1, 2, 3.175))
pocket14 = doc.addObject("PartDesign::Pocket", "Pocket013")
body.addObject(pocket14)
pocket14.Profile = sketch15
pocket14.Type = "UpToFirst"
pocket14.Reversed = True

# Sketch on XZ plane
sketch16 = doc.addObject("Sketcher::SketchObject", "Sketch015")
body.addObject(sketch16)
sketch16.AttachmentSupport = (doc.XZ_Plane, [""])
sketch16.MapMode = "FlatFace"
sketch16.AttachmentOffset = App.Placement(App.Vector(0, 0, -3.175), App.Rotation())
sketch16.addGeometry(Part.Circle(App.Vector(13, 27, 0), App.Vector(0, 0, 1), 7), False)
sketch16.addConstraint(Sketcher.Constraint("Diameter", 0, 14.0))
sketch16.addConstraint(Sketcher.Constraint("DistanceX", -1, 1, 0, 3, 13.25))
sketch16.addConstraint(Sketcher.Constraint("DistanceY", -1, 1, 0, 3, 26.915))
pocket15 = doc.addObject("PartDesign::Pocket", "Pocket014")
body.addObject(pocket15)
pocket15.Profile = sketch16
pocket15.Type = "UpToFirst"
pocket15.Reversed = True

# Sketch on XZ plane
sketch17 = doc.addObject("Sketcher::SketchObject", "Sketch016")
body.addObject(sketch17)
sketch17.AttachmentSupport = (doc.XZ_Plane, [""])
sketch17.MapMode = "FlatFace"
sketch17.AttachmentOffset = App.Placement(App.Vector(0, 0, -3.175), App.Rotation())
sketch17.addGeometry(Part.Circle(App.Vector(48, 27, 0), App.Vector(0, 0, 1), 7), False)
sketch17.addConstraint(Sketcher.Constraint("Diameter", 0, 14.0))
sketch17.addConstraint(Sketcher.Constraint("DistanceX", -1, 1, 0, 3, 48.25))
sketch17.addConstraint(Sketcher.Constraint("DistanceY", -1, 1, 0, 3, 26.915))
pocket16 = doc.addObject("PartDesign::Pocket", "Pocket015")
body.addObject(pocket16)
pocket16.Profile = sketch17
pocket16.Type = "UpToFirst"
pocket16.Reversed = True

doc.recompute()
